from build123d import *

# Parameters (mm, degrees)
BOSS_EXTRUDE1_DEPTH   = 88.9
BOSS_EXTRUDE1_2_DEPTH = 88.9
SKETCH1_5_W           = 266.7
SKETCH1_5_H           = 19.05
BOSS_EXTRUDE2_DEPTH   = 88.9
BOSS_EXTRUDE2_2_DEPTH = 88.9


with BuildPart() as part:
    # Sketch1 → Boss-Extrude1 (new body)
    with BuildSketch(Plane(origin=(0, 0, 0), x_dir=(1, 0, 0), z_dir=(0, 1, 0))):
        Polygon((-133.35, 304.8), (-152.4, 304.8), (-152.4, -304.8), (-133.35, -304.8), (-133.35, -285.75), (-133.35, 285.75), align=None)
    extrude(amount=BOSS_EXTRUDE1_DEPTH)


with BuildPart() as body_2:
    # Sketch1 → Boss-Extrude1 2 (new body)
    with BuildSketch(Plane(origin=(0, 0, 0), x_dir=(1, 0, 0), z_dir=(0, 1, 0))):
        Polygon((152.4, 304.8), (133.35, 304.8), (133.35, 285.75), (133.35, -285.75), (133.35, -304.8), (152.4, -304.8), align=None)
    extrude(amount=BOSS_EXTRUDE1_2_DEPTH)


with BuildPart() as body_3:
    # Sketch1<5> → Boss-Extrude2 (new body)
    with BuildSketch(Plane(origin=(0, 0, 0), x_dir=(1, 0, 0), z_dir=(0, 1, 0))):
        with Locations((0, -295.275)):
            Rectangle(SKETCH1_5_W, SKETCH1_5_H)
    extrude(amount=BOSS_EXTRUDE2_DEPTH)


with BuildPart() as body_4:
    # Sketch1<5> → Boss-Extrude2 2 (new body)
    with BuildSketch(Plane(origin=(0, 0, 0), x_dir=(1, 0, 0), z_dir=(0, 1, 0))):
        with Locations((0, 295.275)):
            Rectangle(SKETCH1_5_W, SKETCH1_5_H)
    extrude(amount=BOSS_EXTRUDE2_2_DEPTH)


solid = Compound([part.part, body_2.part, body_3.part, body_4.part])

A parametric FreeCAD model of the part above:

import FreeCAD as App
import Part
import Sketcher
Q = App.Units.Quantity


def add_polygon(sketch, points):
    """Adds a closed chain of lines whose ends are joined by coincident constraints."""
    first, n = sketch.GeometryCount, len(points)
    for a, b in zip(points, points[1:] + points[:1]):
        sketch.addGeometry(Part.LineSegment(App.Vector(*a, 0), App.Vector(*b, 0)), False)
    for i in range(n):
        sketch.addConstraint(Sketcher.Constraint("Coincident", first + i, 2, first + (i + 1) % n, 1))

doc = App.newDocument("Part")
body = doc.addObject("PartDesign::Body", "Body")

# Sketch on XZ plane
sketch1 = body.newObject("Sketcher::SketchObject", "Sketch")
sketch1.AttachmentSupport = (doc.getObject("XZ_Plane"), [""])
sketch1.MapMode = "FlatFace"
add_polygon(sketch1, [(-133, -305), (-152, -305), (-152, 305), (-133, 305)])  # lines 0-3
sketch1.addConstraint([
    Sketcher.Constraint("Horizontal", 0),
    Sketcher.Constraint("Vertical", 1),
    Sketcher.Constraint("Horizontal", 2),
    Sketcher.Constraint("Vertical", 3),
    Sketcher.Constraint("DistanceY", 1, 1, 1, 2, Q("24 in")),
    Sketcher.Constraint("DistanceX", 0, 2, -1, 1, Q("6 in")),
    Sketcher.Constraint("DistanceY", 0, 2, -1, 1, Q("12 in")),
    Sketcher.Constraint("DistanceX", 0, 2, 0, 1, Q("0.75 in")),
])
pad1 = body.newObject("PartDesign::Pad", "Pad")
pad1.Profile = sketch1
pad1.Length = Q("3.5 in")
pad1.Reversed = True
body2 = doc.addObject("PartDesign::Body", "Body001")

# Sketch on XZ plane
sketch2 = body2.newObject("Sketcher::SketchObject", "Sketch001")
sketch2.AttachmentSupport = (doc.getObject("XZ_Plane001"), [""])
sketch2.MapMode = "FlatFace"
add_polygon(sketch2, [(152, -305), (133, -305), (133, 305), (152, 305)])  # lines 0-3
sketch2.addConstraint([
    Sketcher.Constraint("Horizontal", 0),
    Sketcher.Constraint("Vertical", 1),
    Sketcher.Constraint("Horizontal", 2),
    Sketcher.Constraint("Vertical", 3),
    Sketcher.Constraint("DistanceY", 1, 1, 1, 2, Q("24 in")),
    Sketcher.Constraint("DistanceY", 0, 2, -1, 1, Q("12 in")),
    Sketcher.Constraint("DistanceX", -1, 1, 2, 2, Q("6 in")),
    Sketcher.Constraint("DistanceX", 0, 2, 0, 1, Q("0.75 in")),
])
pad2 = body2.newObject("PartDesign::Pad", "Pad001")
pad2.Profile = sketch2
pad2.Length = Q("3.5 in")
pad2.Reversed = True
body3 = doc.addObject("PartDesign::Body", "Body002")

# Sketch on XZ plane
sketch3 = body3.newObject("Sketcher::SketchObject", "Sketch002")
sketch3.AttachmentSupport = (doc.getObject("XZ_Plane002"), [""])
sketch3.MapMode = "FlatFace"
add_polygon(sketch3, [(-133, 286), (-133, 305), (133, 305), (133, 286)])  # lines 0-3
sketch3.addConstraint([
    Sketcher.Constraint("Vertical", 0),
    Sketcher.Constraint("Horizontal", 1),
    Sketcher.Constraint("Vertical", 2),
    Sketcher.Constraint("Horizontal", 3),
    Sketcher.Constraint("DistanceX", 1, 1, 1, 2, Q("10.5 in")),
    Sketcher.Constraint("DistanceY", -1, 1, 0, 2, Q("12 in")),
    Sketcher.Constraint("DistanceY", 0, 1, 0, 2, Q("0.75 in")),
    Sketcher.Constraint("DistanceX", 0, 2, -1, 1, Q("5.25 in")),
])
pad3 = body3.newObject("PartDesign::Pad", "Pad002")
pad3.Profile = sketch3
pad3.Length = Q("3.5 in")
pad3.Reversed = True
body4 = doc.addObject("PartDesign::Body", "Body003")

# Sketch on XZ plane
sketch4 = body4.newObject("Sketcher::SketchObject", "Sketch003")
sketch4.AttachmentSupport = (doc.getObject("XZ_Plane003"), [""])
sketch4.MapMode = "FlatFace"
add_polygon(sketch4, [(-133, -305), (-133, -286), (133, -286), (133, -305)])  # lines 0-3
sketch4.addConstraint([
    Sketcher.Constraint("Vertical", 0),
    Sketcher.Constraint("Horizontal", 1),
    Sketcher.Constraint("Vertical", 2),
    Sketcher.Constraint("Horizontal", 3),
    Sketcher.Constraint("DistanceX", 1, 1, 1, 2, Q("10.5 in")),
    Sketcher.Constraint("DistanceY", 2, 2, -1, 1, Q("12 in")),
    Sketcher.Constraint("DistanceY", 0, 1, 0, 2, Q("0.75 in")),
    Sketcher.Constraint("DistanceX", 0, 2, -1, 1, Q("5.25 in")),
])
pad4 = body4.newObject("PartDesign::Pad", "Pad003")
pad4.Profile = sketch4
pad4.Length = Q("3.5 in")
pad4.Reversed = True

doc.recompute()
